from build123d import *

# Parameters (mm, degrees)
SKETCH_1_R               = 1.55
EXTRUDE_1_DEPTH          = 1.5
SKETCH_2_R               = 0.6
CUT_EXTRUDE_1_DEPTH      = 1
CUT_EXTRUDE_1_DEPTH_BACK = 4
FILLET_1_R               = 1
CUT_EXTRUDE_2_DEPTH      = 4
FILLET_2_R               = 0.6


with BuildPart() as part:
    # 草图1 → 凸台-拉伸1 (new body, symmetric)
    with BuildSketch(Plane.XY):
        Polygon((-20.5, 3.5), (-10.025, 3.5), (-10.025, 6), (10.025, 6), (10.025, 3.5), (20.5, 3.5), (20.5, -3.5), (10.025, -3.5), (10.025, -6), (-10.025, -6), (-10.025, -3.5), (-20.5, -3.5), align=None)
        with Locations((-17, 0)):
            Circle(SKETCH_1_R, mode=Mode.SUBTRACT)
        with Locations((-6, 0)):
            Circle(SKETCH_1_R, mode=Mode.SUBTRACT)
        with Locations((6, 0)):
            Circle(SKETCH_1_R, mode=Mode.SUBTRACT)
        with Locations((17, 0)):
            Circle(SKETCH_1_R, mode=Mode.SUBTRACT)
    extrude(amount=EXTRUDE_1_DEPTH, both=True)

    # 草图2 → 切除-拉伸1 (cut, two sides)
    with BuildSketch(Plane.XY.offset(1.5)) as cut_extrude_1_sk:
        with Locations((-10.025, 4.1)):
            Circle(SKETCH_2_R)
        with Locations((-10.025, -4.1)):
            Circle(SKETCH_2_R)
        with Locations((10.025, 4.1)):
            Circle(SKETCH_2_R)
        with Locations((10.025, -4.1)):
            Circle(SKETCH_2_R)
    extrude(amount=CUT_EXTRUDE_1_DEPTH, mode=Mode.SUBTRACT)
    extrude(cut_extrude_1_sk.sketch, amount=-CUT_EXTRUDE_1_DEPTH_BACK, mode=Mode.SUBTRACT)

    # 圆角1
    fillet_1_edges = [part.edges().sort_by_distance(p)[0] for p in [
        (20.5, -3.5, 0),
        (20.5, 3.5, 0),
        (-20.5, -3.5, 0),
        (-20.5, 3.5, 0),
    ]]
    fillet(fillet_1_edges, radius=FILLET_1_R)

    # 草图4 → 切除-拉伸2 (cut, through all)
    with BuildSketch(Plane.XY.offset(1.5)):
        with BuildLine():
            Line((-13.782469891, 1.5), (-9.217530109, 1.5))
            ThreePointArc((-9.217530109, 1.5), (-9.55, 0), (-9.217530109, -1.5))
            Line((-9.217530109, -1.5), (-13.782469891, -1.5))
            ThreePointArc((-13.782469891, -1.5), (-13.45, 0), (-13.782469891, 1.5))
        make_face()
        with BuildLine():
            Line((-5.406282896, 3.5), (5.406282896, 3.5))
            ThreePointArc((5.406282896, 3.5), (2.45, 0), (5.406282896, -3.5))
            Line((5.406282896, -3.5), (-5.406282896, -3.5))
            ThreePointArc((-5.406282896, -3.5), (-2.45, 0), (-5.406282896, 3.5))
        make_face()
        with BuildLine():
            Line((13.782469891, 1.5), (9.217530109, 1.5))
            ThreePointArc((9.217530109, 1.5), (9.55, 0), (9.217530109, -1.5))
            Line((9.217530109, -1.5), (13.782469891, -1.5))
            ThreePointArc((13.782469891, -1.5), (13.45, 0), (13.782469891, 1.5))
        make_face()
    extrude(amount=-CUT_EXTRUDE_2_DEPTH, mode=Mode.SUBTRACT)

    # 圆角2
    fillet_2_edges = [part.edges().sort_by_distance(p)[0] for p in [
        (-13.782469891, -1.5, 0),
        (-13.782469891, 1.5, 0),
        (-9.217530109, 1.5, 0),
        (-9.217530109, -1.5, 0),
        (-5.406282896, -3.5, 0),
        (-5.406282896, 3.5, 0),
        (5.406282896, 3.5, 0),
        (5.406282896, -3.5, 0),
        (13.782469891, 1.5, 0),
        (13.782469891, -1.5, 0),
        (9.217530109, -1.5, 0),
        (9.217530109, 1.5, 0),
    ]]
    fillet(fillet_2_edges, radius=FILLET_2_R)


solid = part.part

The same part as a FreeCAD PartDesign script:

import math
import FreeCAD as App
import Part
import Sketcher
from FreeCAD import Vector
Q = App.Units.Quantity


def edges_at(feature, points):
    """Names of the edges that pass closest to the given points."""
    edges = feature.Shape.Edges
    near = lambda p: min(range(len(edges)), key=lambda i: edges[i].distToShape(Part.Vertex(*p))[0])
    return sorted({f"Edge{near(p) + 1}" for p in points})


def add_polygon(sketch, points):
    """Adds a closed chain of lines whose ends are joined by coincident constraints."""
    first, n = sketch.GeometryCount, len(points)
    for a, b in zip(points, points[1:] + points[:1]):
        sketch.addGeometry(Part.LineSegment(App.Vector(*a, 0), App.Vector(*b, 0)), False)
    for i in range(n):
        sketch.addConstraint(Sketcher.Constraint("Coincident", first + i, 2, first + (i + 1) % n, 1))

doc = App.newDocument("Part")
body = doc.addObject("PartDesign::Body", "Body")

sketch1 = doc.addObject("Sketcher::SketchObject", "Sketch")
body.addObject(sketch1)
sketch1.AttachmentSupport = (doc.XY_Plane, [""])
sketch1.MapMode = "FlatFace"
add_polygon(sketch1, [(-10, 3.5), (-20.5, 3.5), (-20.5, -3.5), (-10, -3.5), (-10, -6), (10, -6), (10, -3.5), (20.5, -3.5), (20.5, 3.5), (10, 3.5), (10, 6), (-10, 6)])
sketch1.addGeometry(Part.Circle(Vector(17, 0, 0), Vector(0, 0, 1), 1.6), False)
sketch1.addGeometry(Part.Circle(Vector(6, 0, 0), Vector(0, 0, 1), 1.6), False)
sketch1.addGeometry(Part.Circle(Vector(-6, 0, 0), Vector(0, 0, 1), 1.6), False)
sketch1.addGeometry(Part.Circle(Vector(-17, 0, 0), Vector(0, 0, 1), 1.6), False)
sketch1.addConstraint(Sketcher.Constraint("Horizontal", 0))
sketch1.addConstraint(Sketcher.Constraint("Vertical", 1))
sketch1.addConstraint(Sketcher.Constraint("Horizontal", 2))
sketch1.addConstraint(Sketcher.Constraint("Vertical", 3))
sketch1.addConstraint(Sketcher.Constraint("Horizontal", 4))
sketch1.addConstraint(Sketcher.Constraint("Vertical", 5))
sketch1.addConstraint(Sketcher.Constraint("Horizontal", 6))
sketch1.addConstraint(Sketcher.Constraint("Vertical", 7))
sketch1.addConstraint(Sketcher.Constraint("Horizontal", 8))
sketch1.addConstraint(Sketcher.Constraint("Vertical", 9))
sketch1.addConstraint(Sketcher.Constraint("Horizontal", 10))
sketch1.addConstraint(Sketcher.Constraint("Vertical", 11))
sketch1.addConstraint(Sketcher.Constraint("Equal", 12, 13))
sketch1.addConstraint(Sketcher.Constraint("Equal", 13, 14))
sketch1.addConstraint(Sketcher.Constraint("Equal", 14, 15))
sketch1.addConstraint(Sketcher.Constraint("Symmetric", 13, 3, 14, 3, -1, 1))
sketch1.addConstraint(Sketcher.Constraint("Symmetric", 12, 3, 15, 3, -1, 1))
sketch1.addConstraint(Sketcher.Constraint("Symmetric", 0, 2, 6, 2, -1, 1))
sketch1.addConstraint(Sketcher.Constraint("Symmetric", 2, 2, 8, 2, -1, 1))
sketch1.addConstraint(Sketcher.Constraint("Symmetric", 4, 2, 10, 2, -1, 1))
sketch1.addConstraint(Sketcher.Constraint("Symmetric", 2, 2, 5, 2, -2))
sketch1.addConstraint(Sketcher.Constraint("PointOnObject", 12, 3, -1))
sketch1.addConstraint(Sketcher.Constraint("PointOnObject", 13, 3, -1))
sketch1.addConstraint(Sketcher.Constraint("Diameter", 12, Q("3.1 mm")))
sketch1.addConstraint(Sketcher.Constraint("DistanceY", 1, 2, 1, 1, Q("7 mm")))
sketch1.addConstraint(Sketcher.Constraint("DistanceY", 3, 2, 3, 1, Q("2.5 mm")))
sketch1.addConstraint(Sketcher.Constraint("DistanceX", -1, 1, 12, 3, Q("17 mm")))
sketch1.addConstraint(Sketcher.Constraint("DistanceX", -1, 1, 13, 3, Q("6 mm")))
sketch1.addConstraint(Sketcher.Constraint("DistanceX", 4, 1, 4, 2, Q("20.05 mm")))
sketch1.addConstraint(Sketcher.Constraint("DistanceX", 0, 2, -1, 1, Q("20.5 mm")))
pad1 = doc.addObject("PartDesign::Pad", "Pad")
body.addObject(pad1)
pad1.Profile = sketch1
pad1.Length = 3
pad1.Midplane = True

sketch2 = doc.addObject("Sketcher::SketchObject", "Sketch001")
body.addObject(sketch2)
sketch2.AttachmentSupport = (doc.XY_Plane, [""])
sketch2.MapMode = "FlatFace"
sketch2.AttachmentOffset = App.Placement(Vector(0, 0, 1.5), App.Rotation())
sketch2.addGeometry(Part.Circle(Vector(-10, 4.1, 0), Vector(0, 0, 1), 0.6), False)
sketch2.addGeometry(Part.Circle(Vector(-10, -4.1, 0), Vector(0, 0, 1), 0.6), False)
sketch2.addGeometry(Part.Circle(Vector(10, 4.1, 0), Vector(0, 0, 1), 0.6), False)
sketch2.addGeometry(Part.Circle(Vector(10, -4.1, 0), Vector(0, 0, 1), 0.6), False)
sketch2.addConstraint(Sketcher.Constraint("Equal", 0, 1))
sketch2.addConstraint(Sketcher.Constraint("Equal", 1, 2))
sketch2.addConstraint(Sketcher.Constraint("Equal", 2, 3))
sketch2.addConstraint(Sketcher.Constraint("Symmetric", 1, 3, 2, 3, -1, 1))
sketch2.addConstraint(Sketcher.Constraint("Symmetric", 0, 3, 3, 3, -1, 1))
sketch2.addConstraint(Sketcher.Constraint("Symmetric", 0, 3, 2, 3, -2))
sketch2.addConstraint(Sketcher.Constraint("Diameter", 0, Q("1.2 mm")))
sketch2.addConstraint(Sketcher.Constraint("DistanceY", -1, 1, 0, 3, Q("4.1 mm")))
sketch2.addConstraint(Sketcher.Constraint("DistanceX", 0, 3, 2, 3, Q("20.05 mm")))
pocket1 = doc.addObject("PartDesign::Pocket", "Pocket")
body.addObject(pocket1)
pocket1.Profile = sketch2
pocket1.Type = "ThroughAll"
pocket1.Midplane = True
doc.recompute()

fillet = doc.addObject("PartDesign::Fillet", "Fillet")
body.addObject(fillet)
fillet.Base = (pocket1, edges_at(pocket1, [
    (20.5, -3.5, 0),
    (20.5, 3.5, 0),
    (-20.5, -3.5, 0),
    (-20.5, 3.5, 0),
]))
fillet.Radius = 1

sketch3 = doc.addObject("Sketcher::SketchObject", "Sketch002")
body.addObject(sketch3)
sketch3.AttachmentSupport = (doc.XY_Plane, [""])
sketch3.MapMode = "FlatFace"
sketch3.AttachmentOffset = App.Placement(Vector(0, 0, 1.5), App.Rotation())
sketch3.addGeometry(Part.LineSegment(Vector(-9.2, 1.5, 0), Vector(-13.8, 1.5, 0)), False)
sketch3.addGeometry(Part.ArcOfCircle(Part.Circle(Vector(-17, 0, 0), Vector(0, 0, 1), 3.6), math.radians(-25), math.radians(25)), False)
sketch3.addGeometry(Part.LineSegment(Vector(-13.8, -1.5, 0), Vector(-9.2, -1.5, 0)), False)
sketch3.addGeometry(Part.ArcOfCircle(Part.Circle(Vector(-6, 0, 0), Vector(0, 0, 1), 3.6), math.radians(155), math.radians(205)), False)
sketch3.addGeometry(Part.LineSegment(Vector(5.4, 3.5, 0), Vector(-5.4, 3.5, 0)), False)
sketch3.addGeometry(Part.ArcOfCircle(Part.Circle(Vector(-6, 0, 0), Vector(0, 0, 1), 3.5), math.radians(-80), math.radians(80)), False)
sketch3.addGeometry(Part.LineSegment(Vector(-5.4, -3.5, 0), Vector(5.4, -3.5, 0)), False)
sketch3.addGeometry(Part.ArcOfCircle(Part.Circle(Vector(6, 0, 0), Vector(0, 0, 1), 3.5), math.radians(100), math.radians(260)), False)
sketch3.addGeometry(Part.LineSegment(Vector(13.8, 1.5, 0), Vector(9.2, 1.5, 0)), False)
sketch3.addGeometry(Part.ArcOfCircle(Part.Circle(Vector(6, 0, 0), Vector(0, 0, 1), 3.6), math.radians(-25), math.radians(25)), False)
sketch3.addGeometry(Part.LineSegment(Vector(9.2, -1.5, 0), Vector(13.8, -1.5, 0)), False)
sketch3.addGeometry(Part.ArcOfCircle(Part.Circle(Vector(17, 0, 0), Vector(0, 0, 1), 3.6), math.radians(155), math.radians(205)), False)
sketch3.addConstraint(Sketcher.Constraint("Coincident", 0, 2, 1, 2))
sketch3.addConstraint(Sketcher.Constraint("Coincident", 1, 1, 2, 1))
sketch3.addConstraint(Sketcher.Constraint("Coincident", 2, 2, 3, 2))
sketch3.addConstraint(Sketcher.Constraint("Coincident", 3, 1, 0, 1))
sketch3.addConstraint(Sketcher.Constraint("Coincident", 4, 2, 5, 2))
sketch3.addConstraint(Sketcher.Constraint("Coincident", 5, 1, 6, 1))
sketch3.addConstraint(Sketcher.Constraint("Coincident", 6, 2, 7, 2))
sketch3.addConstraint(Sketcher.Constraint("Coincident", 7, 1, 4, 1))
sketch3.addConstraint(Sketcher.Constraint("Coincident", 8, 2, 9, 2))
sketch3.addConstraint(Sketcher.Constraint("Coincident", 9, 1, 10, 1))
sketch3.addConstraint(Sketcher.Constraint("Coincident", 10, 2, 11, 2))
sketch3.addConstraint(Sketcher.Constraint("Coincident", 11, 1, 8, 1))
sketch3.addConstraint(Sketcher.Constraint("Horizontal", 0))
sketch3.addConstraint(Sketcher.Constraint("Horizontal", 2))
sketch3.addConstraint(Sketcher.Constraint("Horizontal", 4))
sketch3.addConstraint(Sketcher.Constraint("Horizontal", 6))
sketch3.addConstraint(Sketcher.Constraint("Horizontal", 8))
sketch3.addConstraint(Sketcher.Constraint("Horizontal", 10))
sketch3.addConstraint(Sketcher.Constraint("Coincident", 5, 3, 3, 3))
sketch3.addConstraint(Sketcher.Constraint("Coincident", 9, 3, 7, 3))
sketch3.addConstraint(Sketcher.Constraint("Equal", 1, 3))
sketch3.addConstraint(Sketcher.Constraint("Equal", 3, 5))
sketch3.addConstraint(Sketcher.Constraint("Equal", 5, 7))
sketch3.addConstraint(Sketcher.Constraint("Equal", 7, 9))
sketch3.addConstraint(Sketcher.Constraint("Equal", 9, 11))
sketch3.addConstraint(Sketcher.Constraint("Symmetric", 3, 3, 7, 3, -1, 1))
sketch3.addConstraint(Sketcher.Constraint("Symmetric", 1, 3, 11, 3, -1, 1))
sketch3.addConstraint(Sketcher.Constraint("Symmetric", 3, 1, 8, 2, -2))
sketch3.addConstraint(Sketcher.Constraint("Symmetric", 1, 1, 10, 2, -2))
sketch3.addConstraint(Sketcher.Constraint("Vertical", 0, 2, 1, 1))
sketch3.addConstraint(Sketcher.Constraint("Vertical", 4, 2, 5, 1))
sketch3.addConstraint(Sketcher.Constraint("Radius", 1, Q("3.55 mm")))
sketch3.addConstraint(Sketcher.Constraint("DistanceX", 1, 3, -1, 1, Q("17 mm")))
sketch3.addConstraint(Sketcher.Constraint("DistanceX", 3, 3, -1, 1, Q("6 mm")))
sketch3.addConstraint(Sketcher.Constraint("DistanceY", 1, 1, 0, 2, Q("3 mm")))
sketch3.addConstraint(Sketcher.Constraint("DistanceY", 3, 1, 4, 2, Q("2 mm")))
pocket2 = doc.addObject("PartDesign::Pocket", "Pocket001")
body.addObject(pocket2)
pocket2.Profile = sketch3
pocket2.Type = "ThroughAll"
doc.recompute()

fillet2 = doc.addObject("PartDesign::Fillet", "Fillet001")
body.addObject(fillet2)
fillet2.Base = (pocket2, edges_at(pocket2, [
    (-13.782, -1.5, 0),
    (-13.782, 1.5, 0),
    (-9.218, 1.5, 0),
    (-9.218, -1.5, 0),
    (-5.406, -3.5, 0),
    (-5.406, 3.5, 0),
    (5.406, 3.5, 0),
    (5.406, -3.5, 0),
    (13.782, 1.5, 0),
    (13.782, -1.5, 0),
    (9.218, -1.5, 0),
    (9.218, 1.5, 0),
]))
fillet2.Radius = 0.6

doc.recompute()
